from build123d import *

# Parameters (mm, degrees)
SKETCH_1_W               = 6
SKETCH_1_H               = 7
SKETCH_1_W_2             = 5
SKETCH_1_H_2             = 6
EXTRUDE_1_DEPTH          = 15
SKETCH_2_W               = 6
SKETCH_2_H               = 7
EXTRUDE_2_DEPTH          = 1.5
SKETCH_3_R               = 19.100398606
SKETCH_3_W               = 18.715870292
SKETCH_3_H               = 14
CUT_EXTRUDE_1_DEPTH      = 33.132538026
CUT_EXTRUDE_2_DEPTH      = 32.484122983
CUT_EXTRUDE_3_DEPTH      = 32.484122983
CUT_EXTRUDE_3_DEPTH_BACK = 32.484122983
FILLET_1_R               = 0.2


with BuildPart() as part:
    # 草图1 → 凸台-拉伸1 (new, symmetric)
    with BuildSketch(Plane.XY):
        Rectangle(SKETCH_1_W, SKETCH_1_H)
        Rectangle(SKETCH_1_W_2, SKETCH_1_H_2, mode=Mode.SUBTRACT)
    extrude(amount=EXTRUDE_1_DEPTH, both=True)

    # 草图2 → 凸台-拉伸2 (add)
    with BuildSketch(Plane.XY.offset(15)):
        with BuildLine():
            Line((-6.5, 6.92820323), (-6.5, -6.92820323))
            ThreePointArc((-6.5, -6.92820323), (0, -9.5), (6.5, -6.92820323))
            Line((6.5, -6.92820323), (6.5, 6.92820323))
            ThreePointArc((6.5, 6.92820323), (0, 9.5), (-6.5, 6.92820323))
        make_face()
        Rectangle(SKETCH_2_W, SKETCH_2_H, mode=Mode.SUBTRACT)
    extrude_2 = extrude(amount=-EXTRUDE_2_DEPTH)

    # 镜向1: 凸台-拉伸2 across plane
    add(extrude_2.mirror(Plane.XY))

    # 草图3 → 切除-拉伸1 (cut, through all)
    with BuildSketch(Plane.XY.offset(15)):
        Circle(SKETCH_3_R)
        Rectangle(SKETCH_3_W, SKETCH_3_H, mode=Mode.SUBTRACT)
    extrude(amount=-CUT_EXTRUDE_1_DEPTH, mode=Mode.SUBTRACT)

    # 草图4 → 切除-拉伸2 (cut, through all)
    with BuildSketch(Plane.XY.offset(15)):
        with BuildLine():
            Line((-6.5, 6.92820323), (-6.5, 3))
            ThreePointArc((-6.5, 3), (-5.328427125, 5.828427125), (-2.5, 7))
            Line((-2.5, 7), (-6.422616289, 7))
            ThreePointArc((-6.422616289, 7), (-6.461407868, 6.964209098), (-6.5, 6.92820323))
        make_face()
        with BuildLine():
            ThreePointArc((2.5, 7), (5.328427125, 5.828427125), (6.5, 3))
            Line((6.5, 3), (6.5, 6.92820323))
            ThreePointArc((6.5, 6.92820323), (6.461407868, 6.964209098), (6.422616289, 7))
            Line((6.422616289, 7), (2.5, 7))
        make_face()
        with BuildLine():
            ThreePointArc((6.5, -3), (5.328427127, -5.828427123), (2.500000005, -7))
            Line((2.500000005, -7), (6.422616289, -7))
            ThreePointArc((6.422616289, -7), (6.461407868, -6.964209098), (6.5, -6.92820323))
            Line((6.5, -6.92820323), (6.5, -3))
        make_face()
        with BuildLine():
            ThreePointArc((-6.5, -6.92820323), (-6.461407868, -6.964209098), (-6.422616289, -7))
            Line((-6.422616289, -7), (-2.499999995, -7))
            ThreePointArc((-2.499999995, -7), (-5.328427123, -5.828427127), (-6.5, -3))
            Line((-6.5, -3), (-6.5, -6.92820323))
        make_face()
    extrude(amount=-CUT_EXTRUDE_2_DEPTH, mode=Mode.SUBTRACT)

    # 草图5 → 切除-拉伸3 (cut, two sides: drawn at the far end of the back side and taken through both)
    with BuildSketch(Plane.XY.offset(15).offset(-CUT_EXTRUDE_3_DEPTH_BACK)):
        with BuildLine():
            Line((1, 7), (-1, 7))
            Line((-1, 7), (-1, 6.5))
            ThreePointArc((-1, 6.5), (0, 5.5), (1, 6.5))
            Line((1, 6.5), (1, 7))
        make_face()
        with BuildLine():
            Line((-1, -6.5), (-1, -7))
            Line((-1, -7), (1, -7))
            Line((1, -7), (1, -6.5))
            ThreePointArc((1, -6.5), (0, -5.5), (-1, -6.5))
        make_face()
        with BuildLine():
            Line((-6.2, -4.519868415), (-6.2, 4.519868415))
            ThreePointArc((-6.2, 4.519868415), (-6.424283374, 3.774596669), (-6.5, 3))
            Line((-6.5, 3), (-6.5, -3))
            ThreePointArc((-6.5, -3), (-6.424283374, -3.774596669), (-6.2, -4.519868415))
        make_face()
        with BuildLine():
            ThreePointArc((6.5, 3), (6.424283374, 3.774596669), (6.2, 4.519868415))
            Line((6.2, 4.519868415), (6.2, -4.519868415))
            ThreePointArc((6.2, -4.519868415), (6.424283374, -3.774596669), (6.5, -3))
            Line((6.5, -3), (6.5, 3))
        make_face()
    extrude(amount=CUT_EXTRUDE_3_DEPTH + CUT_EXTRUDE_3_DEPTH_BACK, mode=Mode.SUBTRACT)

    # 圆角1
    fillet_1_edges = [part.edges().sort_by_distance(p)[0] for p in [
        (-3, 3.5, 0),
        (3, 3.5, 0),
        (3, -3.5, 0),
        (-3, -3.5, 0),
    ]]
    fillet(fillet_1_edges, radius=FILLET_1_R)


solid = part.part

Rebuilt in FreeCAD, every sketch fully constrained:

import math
import FreeCAD as App
import Part
import Sketcher

V = App.Vector
Q = App.Units.Quantity


def edges_at(feature, points):
    """Names of the edges that pass closest to the given points."""
    edges = feature.Shape.Edges
    near = lambda p: min(range(len(edges)), key=lambda i: edges[i].distToShape(Part.Vertex(*p))[0])
    return sorted({f"Edge{near(p) + 1}" for p in points})


def add_polygon(sketch, points):
    """Adds a closed chain of lines whose ends are joined by coincident constraints."""
    first, n = sketch.GeometryCount, len(points)
    for a, b in zip(points, points[1:] + points[:1]):
        sketch.addGeometry(Part.LineSegment(App.Vector(*a, 0), App.Vector(*b, 0)), False)
    for i in range(n):
        sketch.addConstraint(Sketcher.Constraint("Coincident", first + i, 2, first + (i + 1) % n, 1))

doc = App.newDocument("Part")
params = doc.addObject("Spreadsheet::Sheet", "Params")
for row, (alias, value) in enumerate([
    ("sketch1_width", "6 mm"),
    ("sketch1_width2", "5 mm"),
    ("sketch1_height", "7 mm"),
    ("pad1_length", "30 mm"),
    ("sketch2_radius", "9.5 mm"),
    ("sketch2_width", "6 mm"),
    ("sketch2_height", "7 mm"),
    ("pad2_length", "1.5 mm"),
    ("sketch3_height", "14 mm"),
    ("sketch4_radius", "4 mm"),
    ("sketch5_radius", "1 mm"),
    ("sketch5_radius2", "4 mm"),
    ("sketch5_height", "6 mm"),
    ("sketch5_height2", "0.5 mm"),
    ("fillet_radius", "0.2 mm"),
], start=1):
    params.set(f"A{row}", alias)
    params.set(f"B{row}", "=" + value)
    params.setAlias(f"B{row}", alias)

body = doc.addObject("PartDesign::Body", "Body")

# Sketch on XY plane
sketch1 = body.newObject("Sketcher::SketchObject", "Sketch")
sketch1.AttachmentSupport = (doc.getObject("XY_Plane"), [""])
sketch1.MapMode = "FlatFace"
add_polygon(sketch1, [(-3, 3.5), (-3, -3.5), (3, -3.5), (3, 3.5)])  # lines 0-3
add_polygon(sketch1, [(2.5, -3), (-2.5, -3), (-2.5, 3), (2.5, 3)])  # lines 4-7
sketch1.addConstraint([
    Sketcher.Constraint("Vertical", 0),
    Sketcher.Constraint("Horizontal", 1),
    Sketcher.Constraint("Vertical", 2),
    Sketcher.Constraint("Horizontal", 3),
    Sketcher.Constraint("Horizontal", 4),
    Sketcher.Constraint("Vertical", 5),
    Sketcher.Constraint("Horizontal", 6),
    Sketcher.Constraint("Vertical", 7),
    Sketcher.Constraint("Symmetric", 0, 2, 2, 2, -1, 1),
    Sketcher.Constraint("Symmetric", 4, 2, 6, 2, -1, 1),
    Sketcher.Constraint("Equal", 3, 5),
    Sketcher.Constraint("DistanceX", 1, 1, 1, 2, Q("6 mm")),
    Sketcher.Constraint("DistanceX", 4, 2, 4, 1, Q("5 mm")),
    Sketcher.Constraint("DistanceY", 0, 2, 0, 1, Q("7 mm")),
])
sketch1.setExpression("Constraints[19]", "Params.sketch1_width")
sketch1.setExpression("Constraints[20]", "Params.sketch1_width2")
sketch1.setExpression("Constraints[21]", "Params.sketch1_height")
pad1 = body.newObject("PartDesign::Pad", "Pad")
pad1.Profile = sketch1
pad1.setExpression("Length", "Params.pad1_length")
pad1.Midplane = True

# Sketch on XY plane
sketch2 = body.newObject("Sketcher::SketchObject", "Sketch001")
sketch2.AttachmentSupport = (doc.getObject("XY_Plane"), [""])
sketch2.MapMode = "FlatFace"
sketch2.AttachmentOffset = App.Placement(V(0, 0, 15), App.Rotation())
sketch2.addGeometry(Part.LineSegment(V(-6.5, 6.928203, 0), V(-6.5, -6.928203, 0)), False)  # 0
sketch2.addGeometry(Part.ArcOfCircle(Part.Circle(V(0, 0, 0), V(0, 0, 1), 9.5), math.radians(-133.173551), math.radians(-46.826449)), False)  # 1
sketch2.addGeometry(Part.LineSegment(V(6.5, -6.928203, 0), V(6.5, 6.928203, 0)), False)  # 2
sketch2.addGeometry(Part.ArcOfCircle(Part.Circle(V(0, 0, 0), V(0, 0, 1), 9.5), math.radians(46.826449), math.radians(133.173551)), False)  # 3
add_polygon(sketch2, [(3, -3.5), (-3, -3.5), (-3, 3.5), (3, 3.5)])  # lines 4-7
sketch2.addConstraint([
    Sketcher.Constraint("Coincident", 0, 2, 1, 1),
    Sketcher.Constraint("Coincident", 1, 2, 2, 1),
    Sketcher.Constraint("Coincident", 2, 2, 3, 1),
    Sketcher.Constraint("Coincident", 3, 2, 0, 1),
    Sketcher.Constraint("Vertical", 0),
    Sketcher.Constraint("Vertical", 2),
    Sketcher.Constraint("Horizontal", 4),
    Sketcher.Constraint("Vertical", 5),
    Sketcher.Constraint("Horizontal", 6),
    Sketcher.Constraint("Vertical", 7),
    Sketcher.Constraint("Coincident", 1, 3, -1, 1),
    Sketcher.Constraint("Coincident", 3, 3, -1, 1),
    Sketcher.Constraint("Equal", 1, 3),
    Sketcher.Constraint("Symmetric", 4, 2, 6, 2, -1, 1),
    Sketcher.Constraint("Horizontal", 0, 2, 1, 2),
    Sketcher.Constraint("Radius", 1, Q("9.5 mm")),
    Sketcher.Constraint("DistanceX", 4, 2, 4, 1, Q("6 mm")),
    Sketcher.Constraint("DistanceY", 5, 1, 5, 2, Q("7 mm")),
    Sketcher.Constraint("DistanceX", 0, 2, 1, 2, Q("13 mm")),
])
sketch2.setExpression("Constraints[19]", "Params.sketch2_radius")
sketch2.setExpression("Constraints[20]", "Params.sketch2_width")
sketch2.setExpression("Constraints[21]", "Params.sketch2_height")
pad2 = body.newObject("PartDesign::Pad", "Pad001")
pad2.Profile = sketch2
pad2.setExpression("Length", "Params.pad2_length")
pad2.Reversed = True
doc.recompute()

mirrored = body.newObject("PartDesign::Mirrored", "Mirrored")
mirrored.Originals = [pad2]
mirrored.MirrorPlane = (doc.getObject("XY_Plane"), [""])
body.Tip = mirrored

# Sketch on XY plane
sketch3 = body.newObject("Sketcher::SketchObject", "Sketch002")
sketch3.AttachmentSupport = (doc.getObject("XY_Plane"), [""])
sketch3.MapMode = "FlatFace"
sketch3.AttachmentOffset = App.Placement(V(0, 0, 15), App.Rotation())
sketch3.addGeometry(Part.Circle(V(0, 0, 0), V(0, 0, 1), 19.100399), False)  # 0
add_polygon(sketch3, [(9.357935, -7), (-9.357935, -7), (-9.357935, 7), (9.357935, 7)])  # lines 1-4
sketch3.addConstraint([
    Sketcher.Constraint("Horizontal", 1),
    Sketcher.Constraint("Vertical", 2),
    Sketcher.Constraint("Horizontal", 3),
    Sketcher.Constraint("Vertical", 4),
    Sketcher.Constraint("Coincident", 0, 3, -1, 1),
    Sketcher.Constraint("Symmetric", 1, 2, 3, 2, -1, 1),
    Sketcher.Constraint("DistanceY", 2, 1, 2, 2, Q("14 mm")),
    Sketcher.Constraint("Diameter", 0, Q("38.200797 mm")),
    Sketcher.Constraint("DistanceX", 1, 2, 1, 1, Q("18.71587 mm")),
])
sketch3.setExpression("Constraints[10]", "Params.sketch3_height")
pocket1 = body.newObject("PartDesign::Pocket", "Pocket")
pocket1.Profile = sketch3
pocket1.Type = "ThroughAll"

# Sketch on XY plane
sketch4 = body.newObject("Sketcher::SketchObject", "Sketch003")
sketch4.AttachmentSupport = (doc.getObject("XY_Plane"), [""])
sketch4.MapMode = "FlatFace"
sketch4.AttachmentOffset = App.Placement(V(0, 0, 15), App.Rotation())
sketch4.addGeometry([
    Part.LineSegment(V(-6.5, 6.928203, 0), V(-6.5, 3, 0)),  # 0
    Part.ArcOfCircle(Part.Circle(V(-2.5, 3, 0), V(0, 0, 1), 4), math.radians(90), math.radians(180)),  # 1
    Part.LineSegment(V(-2.5, 7, 0), V(-6.422616, 7, 0)),  # 2
    Part.ArcOfCircle(Part.Circle(V(-0.000003, 0.000003, 0), V(0, 0, 1), 9.499995), math.radians(132.536898), math.radians(133.173551)),  # 3
    Part.ArcOfCircle(Part.Circle(V(2.5, 3, 0), V(0, 0, 1), 4), math.radians(0), math.radians(90)),  # 4
    Part.LineSegment(V(6.5, 3, 0), V(6.5, 6.928203, 0)),  # 5
    Part.ArcOfCircle(Part.Circle(V(0.000003, 0.000003, 0), V(0, 0, 1), 9.499995), math.radians(46.826449), math.radians(47.463102)),  # 6
    Part.LineSegment(V(6.422616, 7, 0), V(2.5, 7, 0)),  # 7
    Part.ArcOfCircle(Part.Circle(V(2.5, -3, 0), V(0, 0, 1), 4), math.radians(-90), math.radians(0)),  # 8
    Part.LineSegment(V(2.5, -7, 0), V(6.422616, -7, 0)),  # 9
    Part.ArcOfCircle(Part.Circle(V(0.000003, -0.000003, 0), V(0, 0, 1), 9.499995), math.radians(-47.463102), math.radians(-46.826449)),  # 10
    Part.LineSegment(V(6.5, -6.928203, 0), V(6.5, -3, 0)),  # 11
    Part.ArcOfCircle(Part.Circle(V(-0.000003, -0.000003, 0), V(0, 0, 1), 9.499995), math.radians(-133.173551), math.radians(-132.536898)),  # 12
    Part.LineSegment(V(-6.422616, -7, 0), V(-2.5, -7, 0)),  # 13
    Part.ArcOfCircle(Part.Circle(V(-2.5, -3, 0), V(0, 0, 1), 4), math.radians(180), math.radians(270)),  # 14
    Part.LineSegment(V(-6.5, -3, 0), V(-6.5, -6.928203, 0)),  # 15
], False)
sketch4.addConstraint([
    Sketcher.Constraint("Tangent", 0, 2, 1, 2),
    Sketcher.Constraint("Tangent", 1, 1, 2, 1),
    Sketcher.Constraint("Coincident", 2, 2, 3, 1),
    Sketcher.Constraint("Coincident", 3, 2, 0, 1),
    Sketcher.Constraint("Tangent", 4, 1, 5, 1),
    Sketcher.Constraint("Coincident", 5, 2, 6, 1),
    Sketcher.Constraint("Coincident", 6, 2, 7, 1),
    Sketcher.Constraint("Tangent", 7, 2, 4, 2),
    Sketcher.Constraint("Tangent", 8, 1, 9, 1),
    Sketcher.Constraint("Coincident", 9, 2, 10, 1),
    Sketcher.Constraint("Coincident", 10, 2, 11, 1),
    Sketcher.Constraint("Tangent", 11, 2, 8, 2),
    Sketcher.Constraint("Coincident", 12, 2, 13, 1),
    Sketcher.Constraint("Tangent", 13, 2, 14, 2),
    Sketcher.Constraint("Tangent", 14, 1, 15, 1),
    Sketcher.Constraint("Coincident", 15, 2, 12, 1),
    Sketcher.Constraint("Vertical", 0),
    Sketcher.Constraint("Horizontal", 2),
    Sketcher.Constraint("Vertical", 5),
    Sketcher.Constraint("Horizontal", 7),
    Sketcher.Constraint("Horizontal", 9),
    Sketcher.Constraint("Vertical", 11),
    Sketcher.Constraint("Horizontal", 13),
    Sketcher.Constraint("Vertical", 15),
    Sketcher.Constraint("Coincident", 3, 3, -1, 1),
    Sketcher.Constraint("Coincident", 6, 3, -1, 1),
    Sketcher.Constraint("Coincident", 10, 3, -1, 1),
    Sketcher.Constraint("Coincident", 12, 3, -1, 1),
    Sketcher.Constraint("Equal", 1, 4),
    Sketcher.Constraint("Equal", 3, 6),
    Sketcher.Constraint("Equal", 4, 8),
    Sketcher.Constraint("Equal", 6, 10),
    Sketcher.Constraint("Equal", 10, 12),
    Sketcher.Constraint("Equal", 8, 14),
    Sketcher.Constraint("Symmetric", 1, 3, 8, 3, -1, 1),
    Sketcher.Constraint("Symmetric", 4, 3, 14, 3, -1, 1),
    Sketcher.Constraint("Symmetric", 1, 3, 4, 3, -2),
    Sketcher.Constraint("Radius", 1, Q("4 mm")),
    Sketcher.Constraint("DistanceY", -1, 1, 1, 3, Q("3 mm")),
    Sketcher.Constraint("DistanceX", 1, 3, 4, 3, Q("5 mm")),
    Sketcher.Constraint("Radius", 3, Q("9.499995 mm")),
])
sketch4.setExpression("Constraints[37]", "Params.sketch4_radius")
pocket2 = body.newObject("PartDesign::Pocket", "Pocket001")
pocket2.Profile = sketch4
pocket2.Type = "ThroughAll"

# Sketch on XY plane
sketch5 = body.newObject("Sketcher::SketchObject", "Sketch004")
sketch5.AttachmentSupport = (doc.getObject("XY_Plane"), [""])
sketch5.MapMode = "FlatFace"
sketch5.AttachmentOffset = App.Placement(V(0, 0, 15), App.Rotation())
sketch5.addGeometry([
    Part.LineSegment(V(1, 7, 0), V(-1, 7, 0)),  # 0
    Part.LineSegment(V(-1, 7, 0), V(-1, 6.5, 0)),  # 1
    Part.ArcOfCircle(Part.Circle(V(0, 6.5, 0), V(0, 0, 1), 1), math.radians(180), math.radians(360)),  # 2
    Part.LineSegment(V(1, 6.5, 0), V(1, 7, 0)),  # 3
    Part.LineSegment(V(-1, -6.5, 0), V(-1, -7, 0)),  # 4
    Part.LineSegment(V(-1, -7, 0), V(1, -7, 0)),  # 5
    Part.LineSegment(V(1, -7, 0), V(1, -6.5, 0)),  # 6
    Part.ArcOfCircle(Part.Circle(V(0, -6.5, 0), V(0, 0, 1), 1), math.radians(0), math.radians(180)),  # 7
    Part.LineSegment(V(-6.2, -4.519868, 0), V(-6.2, 4.519868, 0)),  # 8
    Part.ArcOfCircle(Part.Circle(V(-2.5, 3, 0), V(0, 0, 1), 4), math.radians(157.668355), math.radians(180)),  # 9
    Part.LineSegment(V(-6.5, 3, 0), V(-6.5, -3, 0)),  # 10
    Part.ArcOfCircle(Part.Circle(V(-2.5, -3, 0), V(0, 0, 1), 4), math.radians(-180), math.radians(-157.668355)),  # 11
    Part.ArcOfCircle(Part.Circle(V(2.5, 3, 0), V(0, 0, 1), 4), math.radians(0), math.radians(22.331645)),  # 12
    Part.LineSegment(V(6.2, 4.519868, 0), V(6.2, -4.519868, 0)),  # 13
    Part.ArcOfCircle(Part.Circle(V(2.5, -3, 0), V(0, 0, 1), 4), math.radians(-22.331645), math.radians(0)),  # 14
    Part.LineSegment(V(6.5, -3, 0), V(6.5, 3, 0)),  # 15
], False)
sketch5.addConstraint([
    Sketcher.Constraint("Coincident", 0, 2, 1, 1),
    Sketcher.Constraint("Tangent", 1, 2, 2, 1),
    Sketcher.Constraint("Tangent", 2, 2, 3, 1),
    Sketcher.Constraint("Coincident", 3, 2, 0, 1),
    Sketcher.Constraint("Coincident", 4, 2, 5, 1),
    Sketcher.Constraint("Coincident", 5, 2, 6, 1),
    Sketcher.Constraint("Tangent", 6, 2, 7, 1),
    Sketcher.Constraint("Tangent", 7, 2, 4, 1),
    Sketcher.Constraint("Coincident", 8, 2, 9, 1),
    Sketcher.Constraint("Tangent", 9, 2, 10, 1),
    Sketcher.Constraint("Tangent", 10, 2, 11, 1),
    Sketcher.Constraint("Coincident", 11, 2, 8, 1),
    Sketcher.Constraint("Coincident", 12, 2, 13, 1),
    Sketcher.Constraint("Coincident", 13, 2, 14, 1),
    Sketcher.Constraint("Tangent", 14, 2, 15, 1),
    Sketcher.Constraint("Tangent", 15, 2, 12, 1),
    Sketcher.Constraint("Horizontal", 0),
    Sketcher.Constraint("Vertical", 1),
    Sketcher.Constraint("Vertical", 3),
    Sketcher.Constraint("Vertical", 4),
    Sketcher.Constraint("Horizontal", 5),
    Sketcher.Constraint("Vertical", 6),
    Sketcher.Constraint("Vertical", 8),
    Sketcher.Constraint("Vertical", 10),
    Sketcher.Constraint("Vertical", 13),
    Sketcher.Constraint("Vertical", 15),
    Sketcher.Constraint("Equal", 2, 7),
    Sketcher.Constraint("Equal", 9, 11),
    Sketcher.Constraint("Equal", 11, 12),
    Sketcher.Constraint("Equal", 12, 14),
    Sketcher.Constraint("Symmetric", 2, 3, 7, 3, -1, 1),
    Sketcher.Constraint("Symmetric", 11, 3, 12, 3, -1, 1),
    Sketcher.Constraint("Symmetric", 8, 2, 13, 2, -1, 1),
    Sketcher.Constraint("Symmetric", 0, 2, 4, 2, -1),
    Sketcher.Constraint("Horizontal", 9, 3, 12, 3),
    Sketcher.Constraint("Radius", 2, Q("1 mm")),
    Sketcher.Constraint("Radius", 9, Q("4 mm")),
    Sketcher.Constraint("DistanceY", 10, 2, 10, 1, Q("6 mm")),
    Sketcher.Constraint("DistanceY", 1, 2, 1, 1, Q("0.5 mm")),
    Sketcher.Constraint("DistanceY", -1, 1, 0, 2, Q("7 mm")),
    Sketcher.Constraint("DistanceX", 9, 3, 12, 3, Q("5 mm")),
    Sketcher.Constraint("DistanceX", 8, 2, -1, 1, Q("6.2 mm")),
])
sketch5.setExpression("Constraints[35]", "Params.sketch5_radius")
sketch5.setExpression("Constraints[36]", "Params.sketch5_radius2")
sketch5.setExpression("Constraints[37]", "Params.sketch5_height")
sketch5.setExpression("Constraints[38]", "Params.sketch5_height2")
pocket3 = body.newObject("PartDesign::Pocket", "Pocket002")
pocket3.Profile = sketch5
pocket3.Type = "ThroughAll"
pocket3.Midplane = True
doc.recompute()

fillet = body.newObject("PartDesign::Fillet", "Fillet")
fillet.Base = (pocket3, edges_at(pocket3, [
    (-3, 3.5, 0),
    (3, 3.5, 0),
    (3, -3.5, 0),
    (-3, -3.5, 0),
]))
fillet.setExpression("Radius", "Params.fillet_radius")

doc.recompute()
